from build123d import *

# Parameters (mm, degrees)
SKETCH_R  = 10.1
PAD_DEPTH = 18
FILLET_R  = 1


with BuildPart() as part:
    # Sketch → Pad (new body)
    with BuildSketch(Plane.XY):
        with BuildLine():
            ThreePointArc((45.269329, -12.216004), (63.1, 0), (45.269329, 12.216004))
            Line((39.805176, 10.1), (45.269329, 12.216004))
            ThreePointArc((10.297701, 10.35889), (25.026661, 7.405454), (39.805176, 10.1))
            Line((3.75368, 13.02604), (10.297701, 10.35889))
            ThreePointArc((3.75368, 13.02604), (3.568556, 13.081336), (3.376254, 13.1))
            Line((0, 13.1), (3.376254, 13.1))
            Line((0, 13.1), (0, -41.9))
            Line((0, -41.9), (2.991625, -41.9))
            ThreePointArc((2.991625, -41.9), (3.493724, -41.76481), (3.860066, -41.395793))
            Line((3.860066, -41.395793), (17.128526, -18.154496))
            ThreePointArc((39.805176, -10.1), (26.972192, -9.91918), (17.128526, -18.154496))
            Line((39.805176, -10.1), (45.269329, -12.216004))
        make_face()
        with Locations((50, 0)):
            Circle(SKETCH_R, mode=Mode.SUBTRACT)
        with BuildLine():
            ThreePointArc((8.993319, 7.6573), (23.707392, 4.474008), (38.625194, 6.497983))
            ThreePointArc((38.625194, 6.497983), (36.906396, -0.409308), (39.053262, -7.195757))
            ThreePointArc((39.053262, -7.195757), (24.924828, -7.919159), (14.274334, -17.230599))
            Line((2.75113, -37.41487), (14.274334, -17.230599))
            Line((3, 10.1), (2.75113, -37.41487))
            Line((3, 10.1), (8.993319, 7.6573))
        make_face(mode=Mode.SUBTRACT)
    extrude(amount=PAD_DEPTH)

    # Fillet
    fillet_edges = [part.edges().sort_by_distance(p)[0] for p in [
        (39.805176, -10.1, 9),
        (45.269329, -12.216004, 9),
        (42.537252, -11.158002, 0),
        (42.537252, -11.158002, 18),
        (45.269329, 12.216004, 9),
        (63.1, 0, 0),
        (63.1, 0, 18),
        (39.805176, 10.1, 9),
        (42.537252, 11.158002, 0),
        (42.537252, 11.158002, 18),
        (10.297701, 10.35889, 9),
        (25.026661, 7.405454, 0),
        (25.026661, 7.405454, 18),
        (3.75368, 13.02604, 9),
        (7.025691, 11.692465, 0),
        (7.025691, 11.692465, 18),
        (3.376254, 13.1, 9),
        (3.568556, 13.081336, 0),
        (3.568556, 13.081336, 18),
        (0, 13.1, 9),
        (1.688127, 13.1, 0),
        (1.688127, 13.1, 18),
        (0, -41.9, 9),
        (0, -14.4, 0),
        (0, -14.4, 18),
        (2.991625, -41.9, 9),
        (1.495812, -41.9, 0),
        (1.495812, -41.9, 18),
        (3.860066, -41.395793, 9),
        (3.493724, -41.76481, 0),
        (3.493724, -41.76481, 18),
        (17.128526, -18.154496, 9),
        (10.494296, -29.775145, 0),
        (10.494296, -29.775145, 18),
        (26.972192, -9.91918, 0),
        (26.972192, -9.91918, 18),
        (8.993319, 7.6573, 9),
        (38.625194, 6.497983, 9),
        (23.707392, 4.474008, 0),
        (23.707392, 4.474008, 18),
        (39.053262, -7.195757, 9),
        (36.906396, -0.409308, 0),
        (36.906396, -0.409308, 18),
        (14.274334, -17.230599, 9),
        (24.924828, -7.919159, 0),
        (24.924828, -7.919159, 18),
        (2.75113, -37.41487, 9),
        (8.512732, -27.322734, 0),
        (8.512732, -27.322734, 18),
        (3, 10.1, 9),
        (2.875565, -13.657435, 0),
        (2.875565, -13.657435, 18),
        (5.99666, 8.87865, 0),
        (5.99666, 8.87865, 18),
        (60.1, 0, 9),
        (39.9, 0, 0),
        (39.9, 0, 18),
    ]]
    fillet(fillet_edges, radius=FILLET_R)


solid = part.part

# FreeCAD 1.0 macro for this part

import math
import FreeCAD as App
import Part
import Sketcher
from FreeCAD import Vector

doc = App.newDocument("Part")
body = doc.addObject("PartDesign::Body", "Body")

# Sketch on XY plane
sketch1 = body.newObject("Sketcher::SketchObject", "Sketch")
sketch1.AttachmentSupport = (doc.getObject("XY_Plane"), [""])
sketch1.MapMode = "FlatFace"
sketch1.addGeometry(Part.ArcOfCircle(Part.Circle(Vector(50, 0, 0), Vector(0, 0, 1), 13.1), math.radians(-111.16899), math.radians(111.16899)), False)
sketch1.addGeometry(Part.LineSegment(Vector(45.269329, 12.216004, 0), Vector(39.805176, 10.1, 0)), False)
sketch1.addGeometry(Part.ArcOfCircle(Part.Circle(Vector(25.377188, 47.357369, 0), Vector(0, 0, 1), 39.953452), math.radians(-112.174358), math.radians(-68.831009)), False)
sketch1.addGeometry(Part.LineSegment(Vector(10.297701, 10.35889, 0), Vector(3.75368, 13.02604, 0)), False)
sketch1.addGeometry(Part.ArcOfCircle(Part.Circle(Vector(3.376255, 12.100004, 0), Vector(0, 0, 1), 0.999996), math.radians(67.825655), math.radians(90.000085)), False)
sketch1.addGeometry(Part.LineSegment(Vector(3.376254, 13.1, 0), Vector(0, 13.1, 0)), False)
sketch1.addGeometry(Part.LineSegment(Vector(0, 13.1, 0), Vector(0, -41.9, 0)), False)
sketch1.addGeometry(Part.LineSegment(Vector(0, -41.9, 0), Vector(2.991625, -41.9, 0)), False)
sketch1.addGeometry(Part.ArcOfCircle(Part.Circle(Vector(2.991624, -40.899998, 0), Vector(0, 0, 1), 1.000002), math.radians(-89.999959), math.radians(-29.722112)), False)
sketch1.addGeometry(Part.LineSegment(Vector(3.860066, -41.395793, 0), Vector(17.128526, -18.154496, 0)), False)
sketch1.addGeometry(Part.ArcOfCircle(Part.Circle(Vector(33.145081, -27.298349, 0), Vector(0, 0, 1), 18.442887), math.radians(68.831006), math.radians(150.277948)), False)
sketch1.addGeometry(Part.LineSegment(Vector(39.805176, -10.1, 0), Vector(45.269329, -12.216004, 0)), False)
sketch1.addGeometry(Part.LineSegment(Vector(3, 10.1, 0), Vector(8.993319, 7.6573, 0)), False)
sketch1.addGeometry(Part.ArcOfCircle(Part.Circle(Vector(25.407593, 47.93076, 0), Vector(0, 0, 1), 43.489999), math.radians(-112.17436), math.radians(-72.306633)), False)
sketch1.addGeometry(Part.ArcOfCircle(Part.Circle(Vector(49.999999, 0, 0), Vector(0, 0, 1), 13.099998), math.radians(150.262354), math.radians(213.318626)), False)
sketch1.addGeometry(Part.ArcOfCircle(Part.Circle(Vector(33.032655, -27.939728, 0), Vector(0, 0, 1), 21.600001), math.radians(73.815472), math.radians(150.277945)), False)
sketch1.addGeometry(Part.LineSegment(Vector(14.274334, -17.230599, 0), Vector(2.75113, -37.41487, 0)), False)
sketch1.addGeometry(Part.LineSegment(Vector(2.75113, -37.41487, 0), Vector(3, 10.1, 0)), False)
sketch1.addGeometry(Part.Circle(Vector(50, 0, 0), Vector(0, 0, 1), 10.1), False)
sketch1.addConstraint(Sketcher.Constraint("Coincident", 0, 2, 1, 1))
sketch1.addConstraint(Sketcher.Constraint("Coincident", 1, 2, 2, 2))
sketch1.addConstraint(Sketcher.Constraint("Coincident", 2, 1, 3, 1))
sketch1.addConstraint(Sketcher.Constraint("Coincident", 3, 2, 4, 1))
sketch1.addConstraint(Sketcher.Constraint("Coincident", 4, 2, 5, 1))
sketch1.addConstraint(Sketcher.Constraint("Coincident", 5, 2, 6, 1))
sketch1.addConstraint(Sketcher.Constraint("Coincident", 6, 2, 7, 1))
sketch1.addConstraint(Sketcher.Constraint("Coincident", 7, 2, 8, 1))
sketch1.addConstraint(Sketcher.Constraint("Coincident", 8, 2, 9, 1))
sketch1.addConstraint(Sketcher.Constraint("Coincident", 9, 2, 10, 2))
sketch1.addConstraint(Sketcher.Constraint("Coincident", 10, 1, 11, 1))
sketch1.addConstraint(Sketcher.Constraint("Coincident", 11, 2, 0, 1))
sketch1.addConstraint(Sketcher.Constraint("Coincident", 12, 2, 13, 1))
sketch1.addConstraint(Sketcher.Constraint("Coincident", 13, 2, 14, 1))
sketch1.addConstraint(Sketcher.Constraint("Coincident", 14, 2, 15, 1))
sketch1.addConstraint(Sketcher.Constraint("Coincident", 15, 2, 16, 1))
sketch1.addConstraint(Sketcher.Constraint("Coincident", 16, 2, 17, 1))
sketch1.addConstraint(Sketcher.Constraint("Coincident", 17, 2, 12, 1))
sketch1.addConstraint(Sketcher.Constraint("Horizontal", 5))
sketch1.addConstraint(Sketcher.Constraint("Vertical", 6))
sketch1.addConstraint(Sketcher.Constraint("Horizontal", 7))
sketch1.addConstraint(Sketcher.Constraint("Coincident", 14, 3, 0, 3))
sketch1.addConstraint(Sketcher.Constraint("Coincident", 18, 3, 0, 3))
sketch1.addConstraint(Sketcher.Constraint("PointOnObject", 0, 3, -1))
sketch1.addConstraint(Sketcher.Constraint("PointOnObject", 5, 2, -2))
sketch1.addConstraint(Sketcher.Constraint("Radius", 8, 1.000002))
sketch1.addConstraint(Sketcher.Constraint("Diameter", 18, 20.2))
sketch1.addConstraint(Sketcher.Constraint("Radius", 0, 13.1))
sketch1.addConstraint(Sketcher.Constraint("Radius", 14, 13.099998))
sketch1.addConstraint(Sketcher.Constraint("Radius", 15, 21.600001))
sketch1.addConstraint(Sketcher.Constraint("DistanceY", 6, 2, 6, 1, 55.0))
sketch1.addConstraint(Sketcher.Constraint("Radius", 13, 43.489999))
sketch1.addConstraint(Sketcher.Constraint("DistanceX", -1, 1, 0, 3, 50.0))
sketch1.addConstraint(Sketcher.Constraint("DistanceX", -1, 1, 17, 2, 3.0))
sketch1.addConstraint(Sketcher.Constraint("DistanceY", 1, 2, 4, 2, 3.0))
sketch1.addConstraint(Sketcher.Constraint("DistanceY", 17, 2, 4, 2, 3.0))
sketch1.addConstraint(Sketcher.Constraint("DistanceY", 8, 3, -1, 1, 40.899998))
sketch1.addConstraint(Sketcher.Constraint("DistanceY", 10, 1, -1, 1, 10.1))
sketch1.addConstraint(Sketcher.Constraint("Radius", 2, 39.953452))
sketch1.addConstraint(Sketcher.Constraint("Radius", 4, 0.999996))
sketch1.addConstraint(Sketcher.Constraint("Radius", 10, 18.442887))
sketch1.addConstraint(Sketcher.Constraint("Distance", 9, 26.762099))
sketch1.addConstraint(Sketcher.Constraint("DistanceX", -1, 1, 2, 1, 10.297701))
sketch1.addConstraint(Sketcher.Constraint("DistanceY", -1, 1, 12, 2, 7.6573))
sketch1.addConstraint(Sketcher.Constraint("DistanceY", 15, 2, -1, 1, 17.230599))
sketch1.addConstraint(Sketcher.Constraint("DistanceX", 4, 3, 15, 3, 29.6564))
sketch1.addConstraint(Sketcher.Constraint("DistanceX", 8, 3, 9, 2, 14.136902))
sketch1.addConstraint(Sketcher.Constraint("DistanceX", 7, 2, 9, 2, 14.136901))
sketch1.addConstraint(Sketcher.Constraint("Distance", 1, 5.85956))
sketch1.addConstraint(Sketcher.Constraint("Distance", 11, 5.85956))
sketch1.addConstraint(Sketcher.Constraint("Distance", 12, 6.47199))
sketch1.addConstraint(Sketcher.Constraint("Distance", 17, 47.515522))
sketch1.addConstraint(Sketcher.Constraint("DistanceX", 5, 2, 5, 1, 3.376254))
sketch1.addConstraint(Sketcher.Constraint("DistanceX", 7, 1, 7, 2, 2.991625))
sketch1.addConstraint(Sketcher.Constraint("DistanceX", -1, 1, 2, 3, 25.377188))
sketch1.addConstraint(Sketcher.Constraint("DistanceY", -1, 1, 2, 3, 47.357369))
sketch1.addConstraint(Sketcher.Constraint("DistanceX", -1, 1, 10, 3, 33.145081))
sketch1.addConstraint(Sketcher.Constraint("DistanceY", 10, 3, -1, 1, 27.298349))
sketch1.addConstraint(Sketcher.Constraint("DistanceY", -1, 1, 13, 3, 47.93076))
sketch1.addConstraint(Sketcher.Constraint("DistanceY", 15, 3, -1, 1, 27.939728))
sketch1.addConstraint(Sketcher.Constraint("DistanceX", -1, 1, 3, 2, 3.75368))
sketch1.addConstraint(Sketcher.Constraint("DistanceY", -1, 1, 3, 2, 13.02604))
sketch1.addConstraint(Sketcher.Constraint("DistanceX", -1, 1, 16, 2, 2.75113))
pad1 = body.newObject("PartDesign::Pad", "Pad")
pad1.Profile = sketch1
pad1.Length = 18
doc.recompute()

fillet = body.newObject("PartDesign::Fillet", "Fillet")
fillet.Base = (pad1, ["Edge1"])
fillet.UseAllEdges = True
fillet.Radius = 1

doc.recompute()
